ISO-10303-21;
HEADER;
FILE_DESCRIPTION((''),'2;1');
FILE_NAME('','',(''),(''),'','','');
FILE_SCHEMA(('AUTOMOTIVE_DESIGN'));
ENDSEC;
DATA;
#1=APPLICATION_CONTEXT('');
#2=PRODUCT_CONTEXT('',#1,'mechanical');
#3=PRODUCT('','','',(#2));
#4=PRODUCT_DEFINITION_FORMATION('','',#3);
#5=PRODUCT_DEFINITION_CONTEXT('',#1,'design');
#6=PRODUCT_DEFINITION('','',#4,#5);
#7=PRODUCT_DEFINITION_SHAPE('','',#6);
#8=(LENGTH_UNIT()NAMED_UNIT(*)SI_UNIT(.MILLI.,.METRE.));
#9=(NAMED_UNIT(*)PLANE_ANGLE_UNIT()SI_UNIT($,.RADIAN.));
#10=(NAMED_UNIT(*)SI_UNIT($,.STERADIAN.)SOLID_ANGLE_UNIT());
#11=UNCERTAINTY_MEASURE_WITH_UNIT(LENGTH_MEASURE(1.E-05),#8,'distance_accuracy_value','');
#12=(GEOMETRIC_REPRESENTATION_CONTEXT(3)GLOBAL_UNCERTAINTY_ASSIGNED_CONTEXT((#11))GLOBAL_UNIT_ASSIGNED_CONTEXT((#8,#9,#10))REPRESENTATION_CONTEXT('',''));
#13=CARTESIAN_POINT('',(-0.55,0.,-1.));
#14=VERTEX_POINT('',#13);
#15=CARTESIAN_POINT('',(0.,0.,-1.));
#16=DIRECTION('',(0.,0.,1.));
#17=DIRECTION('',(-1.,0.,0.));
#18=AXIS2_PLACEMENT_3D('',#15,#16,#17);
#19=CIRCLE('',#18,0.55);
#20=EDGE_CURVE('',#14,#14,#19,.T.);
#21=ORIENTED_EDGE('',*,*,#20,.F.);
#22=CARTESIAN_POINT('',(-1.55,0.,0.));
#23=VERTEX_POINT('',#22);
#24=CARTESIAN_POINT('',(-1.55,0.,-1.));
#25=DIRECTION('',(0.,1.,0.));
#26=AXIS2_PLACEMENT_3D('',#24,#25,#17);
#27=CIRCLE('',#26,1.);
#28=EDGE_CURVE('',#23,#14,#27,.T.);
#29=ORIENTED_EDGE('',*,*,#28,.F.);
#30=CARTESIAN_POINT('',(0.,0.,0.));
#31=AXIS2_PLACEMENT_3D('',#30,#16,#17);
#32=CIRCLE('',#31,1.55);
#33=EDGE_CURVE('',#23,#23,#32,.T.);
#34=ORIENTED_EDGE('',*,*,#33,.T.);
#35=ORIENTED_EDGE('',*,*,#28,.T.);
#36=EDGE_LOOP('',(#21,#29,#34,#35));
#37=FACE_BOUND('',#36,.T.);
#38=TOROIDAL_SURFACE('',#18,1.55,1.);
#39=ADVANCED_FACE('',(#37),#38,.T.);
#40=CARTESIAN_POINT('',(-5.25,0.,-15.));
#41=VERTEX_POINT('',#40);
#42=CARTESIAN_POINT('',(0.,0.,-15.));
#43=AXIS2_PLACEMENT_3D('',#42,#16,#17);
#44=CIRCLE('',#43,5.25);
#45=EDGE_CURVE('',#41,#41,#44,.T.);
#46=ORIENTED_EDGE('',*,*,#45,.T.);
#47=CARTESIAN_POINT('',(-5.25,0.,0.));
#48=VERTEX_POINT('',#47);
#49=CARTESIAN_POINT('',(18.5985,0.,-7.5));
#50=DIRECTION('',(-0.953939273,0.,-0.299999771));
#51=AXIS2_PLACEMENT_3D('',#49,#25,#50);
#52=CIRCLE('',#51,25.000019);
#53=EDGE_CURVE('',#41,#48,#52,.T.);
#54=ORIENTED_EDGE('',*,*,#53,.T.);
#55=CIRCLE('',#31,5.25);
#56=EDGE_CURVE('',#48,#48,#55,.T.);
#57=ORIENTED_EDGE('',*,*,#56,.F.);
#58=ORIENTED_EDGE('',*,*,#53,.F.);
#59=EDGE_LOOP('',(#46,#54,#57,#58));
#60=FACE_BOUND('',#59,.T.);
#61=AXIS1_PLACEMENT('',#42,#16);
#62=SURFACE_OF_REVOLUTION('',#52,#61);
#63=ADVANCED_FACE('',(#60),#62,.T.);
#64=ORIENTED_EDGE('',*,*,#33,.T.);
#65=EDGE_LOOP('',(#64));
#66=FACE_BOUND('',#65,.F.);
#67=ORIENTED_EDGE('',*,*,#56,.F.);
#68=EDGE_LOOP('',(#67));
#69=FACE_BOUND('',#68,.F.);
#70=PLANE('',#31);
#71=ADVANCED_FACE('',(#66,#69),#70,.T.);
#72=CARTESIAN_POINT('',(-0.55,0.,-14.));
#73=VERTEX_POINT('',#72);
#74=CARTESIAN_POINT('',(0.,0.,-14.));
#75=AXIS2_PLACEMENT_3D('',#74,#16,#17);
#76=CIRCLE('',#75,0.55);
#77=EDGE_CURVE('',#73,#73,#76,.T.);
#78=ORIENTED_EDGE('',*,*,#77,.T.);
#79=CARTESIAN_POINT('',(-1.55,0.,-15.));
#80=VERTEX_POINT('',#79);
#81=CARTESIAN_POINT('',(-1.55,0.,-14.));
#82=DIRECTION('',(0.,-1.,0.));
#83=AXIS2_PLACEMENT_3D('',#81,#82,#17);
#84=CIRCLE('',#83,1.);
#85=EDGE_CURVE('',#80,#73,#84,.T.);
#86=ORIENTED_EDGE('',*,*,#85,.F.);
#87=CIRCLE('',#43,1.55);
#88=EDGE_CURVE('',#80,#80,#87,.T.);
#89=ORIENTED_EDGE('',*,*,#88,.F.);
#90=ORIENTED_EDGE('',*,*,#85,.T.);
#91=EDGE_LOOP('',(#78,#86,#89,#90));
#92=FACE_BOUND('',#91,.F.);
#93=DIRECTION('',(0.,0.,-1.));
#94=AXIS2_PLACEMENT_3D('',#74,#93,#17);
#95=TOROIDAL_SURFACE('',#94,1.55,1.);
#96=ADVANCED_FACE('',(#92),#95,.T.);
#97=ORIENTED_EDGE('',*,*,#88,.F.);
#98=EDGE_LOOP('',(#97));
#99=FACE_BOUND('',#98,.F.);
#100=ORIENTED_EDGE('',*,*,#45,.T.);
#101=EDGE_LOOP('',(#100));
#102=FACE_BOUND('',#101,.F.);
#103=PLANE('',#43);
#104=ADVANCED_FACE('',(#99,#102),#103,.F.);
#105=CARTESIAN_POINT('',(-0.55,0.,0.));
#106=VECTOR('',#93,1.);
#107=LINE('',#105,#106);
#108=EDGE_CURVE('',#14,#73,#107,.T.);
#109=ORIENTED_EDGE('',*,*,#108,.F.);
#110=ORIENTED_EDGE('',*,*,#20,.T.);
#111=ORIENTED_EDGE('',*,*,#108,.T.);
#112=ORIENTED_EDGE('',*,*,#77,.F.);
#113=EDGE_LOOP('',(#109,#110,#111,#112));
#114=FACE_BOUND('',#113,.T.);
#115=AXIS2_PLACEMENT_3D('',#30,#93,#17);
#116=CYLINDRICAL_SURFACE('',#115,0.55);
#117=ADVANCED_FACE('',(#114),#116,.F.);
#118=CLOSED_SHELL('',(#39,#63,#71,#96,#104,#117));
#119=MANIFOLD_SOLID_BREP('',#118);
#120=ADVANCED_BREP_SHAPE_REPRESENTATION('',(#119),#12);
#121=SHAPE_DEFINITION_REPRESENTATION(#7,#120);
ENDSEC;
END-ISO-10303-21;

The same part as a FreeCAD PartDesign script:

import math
import FreeCAD as App
import Part
import Sketcher
Q = App.Units.Quantity


def edges_at(feature, points):
    """Names of the edges that pass closest to the given points."""
    edges = feature.Shape.Edges
    near = lambda p: min(range(len(edges)), key=lambda i: edges[i].distToShape(Part.Vertex(*p))[0])
    return sorted({f"Edge{near(p) + 1}" for p in points})

doc = App.newDocument("Part")
body = doc.addObject("PartDesign::Body", "Body")

sketch1 = body.newObject("Sketcher::SketchObject", "Sketch")
sketch1.AttachmentSupport = (doc.getObject("XZ_Plane"), [""])
sketch1.MapMode = "FlatFace"
sketch1.addGeometry([
    Part.LineSegment(App.Vector(-5.25, 0, 0), App.Vector(-0.55, 0, 0)),
    Part.LineSegment(App.Vector(-0.55, 0, 0), App.Vector(-0.55, -15, 0)),
    Part.LineSegment(App.Vector(-0.55, -15, 0), App.Vector(-5.25, -15, 0)),
    Part.ArcOfCircle(Part.Circle(App.Vector(18.5985, -7.5, 0), App.Vector(0, 0, 1), 25.000019), math.radians(162.542411), math.radians(197.457589)),
], False)
sketch1.addConstraint([
    Sketcher.Constraint("Coincident", 0, 2, 1, 1),
    Sketcher.Constraint("Coincident", 1, 2, 2, 1),
    Sketcher.Constraint("Coincident", 2, 2, 3, 2),
    Sketcher.Constraint("Coincident", 3, 1, 0, 1),
    Sketcher.Constraint("Horizontal", 0),
    Sketcher.Constraint("Vertical", 1),
    Sketcher.Constraint("Horizontal", 2),
    Sketcher.Constraint("PointOnObject", 0, 2, -1),
    Sketcher.Constraint("Vertical", 2, 2, 3, 1),
    Sketcher.Constraint("Radius", 3, Q("25 mm")),
    Sketcher.Constraint("DistanceY", 1, 2, 1, 1, Q("15 mm")),
    Sketcher.Constraint("DistanceX", 0, 2, -1, 1, Q("0.55 mm")),
    Sketcher.Constraint("DistanceX", 2, 2, -1, 1, Q("5.25 mm")),
])
revolution = body.newObject("PartDesign::Revolution", "Revolution")
revolution.Profile = sketch1
revolution.ReferenceAxis = (sketch1, ["V_Axis"])
revolution.Angle = 360
doc.recompute()

fillet = body.newObject("PartDesign::Fillet", "Fillet")
fillet.Base = (revolution, edges_at(revolution, [(0.55, 0, 0), (0.55, 0, -15)]))
fillet.Radius = 1

doc.recompute()
